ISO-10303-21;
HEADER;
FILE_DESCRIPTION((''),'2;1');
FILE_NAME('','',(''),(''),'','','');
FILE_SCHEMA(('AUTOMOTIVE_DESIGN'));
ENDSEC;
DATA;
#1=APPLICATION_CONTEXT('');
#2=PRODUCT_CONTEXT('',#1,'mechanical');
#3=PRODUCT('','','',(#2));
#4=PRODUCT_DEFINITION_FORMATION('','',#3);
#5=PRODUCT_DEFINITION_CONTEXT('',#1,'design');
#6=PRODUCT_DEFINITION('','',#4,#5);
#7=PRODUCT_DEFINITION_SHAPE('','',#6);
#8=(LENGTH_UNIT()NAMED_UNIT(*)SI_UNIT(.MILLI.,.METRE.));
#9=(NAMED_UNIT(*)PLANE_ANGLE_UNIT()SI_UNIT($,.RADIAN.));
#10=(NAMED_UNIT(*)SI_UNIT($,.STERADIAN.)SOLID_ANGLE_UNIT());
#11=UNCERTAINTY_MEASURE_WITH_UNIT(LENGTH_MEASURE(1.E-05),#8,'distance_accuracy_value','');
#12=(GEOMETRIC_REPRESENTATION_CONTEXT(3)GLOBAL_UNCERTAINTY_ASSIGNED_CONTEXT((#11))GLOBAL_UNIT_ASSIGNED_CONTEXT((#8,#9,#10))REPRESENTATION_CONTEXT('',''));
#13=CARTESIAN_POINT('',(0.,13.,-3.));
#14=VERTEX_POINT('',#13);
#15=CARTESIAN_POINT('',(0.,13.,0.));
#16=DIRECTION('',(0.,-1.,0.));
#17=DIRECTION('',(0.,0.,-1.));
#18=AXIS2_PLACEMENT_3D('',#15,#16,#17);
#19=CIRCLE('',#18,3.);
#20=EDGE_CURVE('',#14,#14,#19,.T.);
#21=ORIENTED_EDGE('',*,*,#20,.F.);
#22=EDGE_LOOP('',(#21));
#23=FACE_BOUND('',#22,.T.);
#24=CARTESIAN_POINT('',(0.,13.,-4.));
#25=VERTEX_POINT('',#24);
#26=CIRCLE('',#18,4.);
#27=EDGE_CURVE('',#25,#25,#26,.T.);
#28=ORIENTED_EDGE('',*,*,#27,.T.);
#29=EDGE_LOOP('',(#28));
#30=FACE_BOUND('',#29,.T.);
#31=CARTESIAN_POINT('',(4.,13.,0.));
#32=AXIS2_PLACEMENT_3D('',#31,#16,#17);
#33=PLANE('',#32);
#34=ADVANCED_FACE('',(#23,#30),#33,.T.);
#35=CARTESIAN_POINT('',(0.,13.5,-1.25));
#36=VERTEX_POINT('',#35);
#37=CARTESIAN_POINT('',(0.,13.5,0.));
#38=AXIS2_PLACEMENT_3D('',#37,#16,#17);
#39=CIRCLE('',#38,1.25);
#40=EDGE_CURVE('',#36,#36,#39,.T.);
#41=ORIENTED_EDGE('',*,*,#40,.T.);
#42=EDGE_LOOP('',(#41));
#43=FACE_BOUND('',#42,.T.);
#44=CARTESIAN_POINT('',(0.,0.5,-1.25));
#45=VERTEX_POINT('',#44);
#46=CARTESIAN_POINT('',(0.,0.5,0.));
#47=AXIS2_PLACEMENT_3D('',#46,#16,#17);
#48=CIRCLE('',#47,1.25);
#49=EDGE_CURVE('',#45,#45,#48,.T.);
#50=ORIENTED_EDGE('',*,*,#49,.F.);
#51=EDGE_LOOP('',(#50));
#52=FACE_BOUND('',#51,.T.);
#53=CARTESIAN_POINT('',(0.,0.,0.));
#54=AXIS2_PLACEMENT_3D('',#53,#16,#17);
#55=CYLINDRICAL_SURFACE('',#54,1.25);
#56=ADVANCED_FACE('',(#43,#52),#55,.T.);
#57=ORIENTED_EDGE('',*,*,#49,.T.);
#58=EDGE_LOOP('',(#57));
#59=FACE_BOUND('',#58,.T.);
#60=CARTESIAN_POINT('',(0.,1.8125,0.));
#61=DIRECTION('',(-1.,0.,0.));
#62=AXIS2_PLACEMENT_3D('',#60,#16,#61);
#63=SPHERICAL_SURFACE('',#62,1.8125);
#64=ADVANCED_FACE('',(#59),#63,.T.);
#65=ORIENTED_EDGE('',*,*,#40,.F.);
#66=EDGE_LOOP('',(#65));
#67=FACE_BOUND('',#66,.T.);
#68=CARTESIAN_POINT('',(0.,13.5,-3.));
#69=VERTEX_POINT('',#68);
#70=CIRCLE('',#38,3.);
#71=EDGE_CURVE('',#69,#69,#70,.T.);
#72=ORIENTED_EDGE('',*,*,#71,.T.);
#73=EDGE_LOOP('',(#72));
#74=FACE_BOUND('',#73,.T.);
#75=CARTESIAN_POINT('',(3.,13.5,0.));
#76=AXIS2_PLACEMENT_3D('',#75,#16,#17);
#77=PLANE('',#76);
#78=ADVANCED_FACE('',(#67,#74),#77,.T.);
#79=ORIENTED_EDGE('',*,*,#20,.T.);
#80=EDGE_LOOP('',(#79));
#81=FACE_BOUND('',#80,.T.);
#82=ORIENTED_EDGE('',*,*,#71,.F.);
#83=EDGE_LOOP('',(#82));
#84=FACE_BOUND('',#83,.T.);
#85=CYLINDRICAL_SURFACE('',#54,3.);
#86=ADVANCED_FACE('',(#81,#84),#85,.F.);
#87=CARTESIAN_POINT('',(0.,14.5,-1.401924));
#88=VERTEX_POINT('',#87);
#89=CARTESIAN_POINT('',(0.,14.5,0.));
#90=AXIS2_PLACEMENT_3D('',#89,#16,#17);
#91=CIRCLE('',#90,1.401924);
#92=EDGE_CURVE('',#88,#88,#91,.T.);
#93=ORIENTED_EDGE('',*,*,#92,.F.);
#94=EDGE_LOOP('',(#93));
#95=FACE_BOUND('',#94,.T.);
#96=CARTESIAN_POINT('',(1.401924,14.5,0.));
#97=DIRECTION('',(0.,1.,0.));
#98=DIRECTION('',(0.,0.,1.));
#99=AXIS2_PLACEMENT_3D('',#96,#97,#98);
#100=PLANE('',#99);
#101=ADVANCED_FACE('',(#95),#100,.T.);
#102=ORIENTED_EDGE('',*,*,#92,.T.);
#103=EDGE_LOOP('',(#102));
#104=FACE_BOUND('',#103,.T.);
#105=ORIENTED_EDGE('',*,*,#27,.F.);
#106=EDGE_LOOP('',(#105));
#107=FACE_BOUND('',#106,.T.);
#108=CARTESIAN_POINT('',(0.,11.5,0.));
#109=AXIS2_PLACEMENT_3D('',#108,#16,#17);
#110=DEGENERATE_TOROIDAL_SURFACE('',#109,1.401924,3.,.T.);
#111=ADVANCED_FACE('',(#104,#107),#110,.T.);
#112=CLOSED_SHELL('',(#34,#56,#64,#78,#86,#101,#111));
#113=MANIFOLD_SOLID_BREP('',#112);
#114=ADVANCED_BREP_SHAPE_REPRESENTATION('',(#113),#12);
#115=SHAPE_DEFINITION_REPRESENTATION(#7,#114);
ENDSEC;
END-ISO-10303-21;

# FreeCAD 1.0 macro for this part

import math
import FreeCAD as App
import Part
import Sketcher

doc = App.newDocument("Part")
params = doc.addObject("Spreadsheet::Sheet", "Params")
for row, (alias, value) in enumerate([
    ("sketch1_radius", "3 mm"),
    ("sketch1_width", "1 mm"),
    ("sketch1_height", "13 mm"),
    ("sketch1_height2", "0.5 mm"),
    ("sketch1_height3", "14.5 mm"),
    ("revolution_angle", "360 deg"),
], start=1):
    params.set(f"A{row}", alias)
    params.set(f"B{row}", "=" + value)
    params.setAlias(f"B{row}", alias)

body = doc.addObject("PartDesign::Body", "Body")

# Sketch on XY plane
sketch1 = doc.addObject("Sketcher::SketchObject", "Sketch")
body.addObject(sketch1)
sketch1.AttachmentSupport = (doc.XY_Plane, [""])
sketch1.MapMode = "FlatFace"
sketch1.addGeometry(Part.LineSegment(App.Vector(1.2, 0.5, 0), App.Vector(1.2, 13.5, 0)), False)
sketch1.addGeometry(Part.LineSegment(App.Vector(1.2, 13.5, 0), App.Vector(3, 13.5, 0)), False)
sketch1.addGeometry(Part.LineSegment(App.Vector(3, 13.5, 0), App.Vector(3, 13, 0)), False)
sketch1.addGeometry(Part.LineSegment(App.Vector(3, 13, 0), App.Vector(4, 13, 0)), False)
sketch1.addGeometry(Part.ArcOfCircle(Part.Circle(App.Vector(1.4, 11.5, 0), App.Vector(0, 0, 1), 3), math.radians(30), math.radians(90)), False)
sketch1.addGeometry(Part.LineSegment(App.Vector(1.4, 14.5, 0), App.Vector(0, 14.5, 0)), False)
sketch1.addGeometry(Part.LineSegment(App.Vector(0, 14.5, 0), App.Vector(0, 0, 0)), False)
sketch1.addGeometry(Part.ArcOfCircle(Part.Circle(App.Vector(0, 1.8, 0), App.Vector(0, 0, 1), 1.8), math.radians(-90), math.radians(-46)), False)
sketch1.addConstraint(Sketcher.Constraint("Coincident", 0, 2, 1, 1))
sketch1.addConstraint(Sketcher.Constraint("Coincident", 1, 2, 2, 1))
sketch1.addConstraint(Sketcher.Constraint("Coincident", 2, 2, 3, 1))
sketch1.addConstraint(Sketcher.Constraint("Coincident", 3, 2, 4, 1))
sketch1.addConstraint(Sketcher.Constraint("Tangent", 4, 2, 5, 1))
sketch1.addConstraint(Sketcher.Constraint("Coincident", 5, 2, 6, 1))
sketch1.addConstraint(Sketcher.Constraint("Coincident", 6, 2, 7, 1))
sketch1.addConstraint(Sketcher.Constraint("Coincident", 7, 2, 0, 1))
sketch1.addConstraint(Sketcher.Constraint("Vertical", 0))
sketch1.addConstraint(Sketcher.Constraint("Horizontal", 1))
sketch1.addConstraint(Sketcher.Constraint("Vertical", 2))
sketch1.addConstraint(Sketcher.Constraint("Horizontal", 3))
sketch1.addConstraint(Sketcher.Constraint("Horizontal", 5))
sketch1.addConstraint(Sketcher.Constraint("Vertical", 6))
sketch1.addConstraint(Sketcher.Constraint("Coincident", 6, 2, -1, 1))
sketch1.addConstraint(Sketcher.Constraint("PointOnObject", 7, 3, -2))
sketch1.addConstraint(Sketcher.Constraint("Radius", 4, 3.0))
sketch1.addConstraint(Sketcher.Constraint("DistanceX", 3, 1, 3, 2, 1.0))
sketch1.addConstraint(Sketcher.Constraint("DistanceY", 0, 1, 0, 2, 13.0))
sketch1.addConstraint(Sketcher.Constraint("DistanceY", 2, 2, 2, 1, 0.5))
sketch1.addConstraint(Sketcher.Constraint("DistanceY", 6, 2, 6, 1, 14.5))
sketch1.addConstraint(Sketcher.Constraint("DistanceX", -1, 1, 1, 2, 3.0))
sketch1.addConstraint(Sketcher.Constraint("DistanceY", -1, 1, 2, 2, 13.0))
sketch1.addConstraint(Sketcher.Constraint("DistanceX", 1, 1, 1, 2, 1.75))
sketch1.setExpression("Constraints[16]", "Params.sketch1_radius")
sketch1.setExpression("Constraints[17]", "Params.sketch1_width")
sketch1.setExpression("Constraints[18]", "Params.sketch1_height")
sketch1.setExpression("Constraints[19]", "Params.sketch1_height2")
sketch1.setExpression("Constraints[20]", "Params.sketch1_height3")
revolution = doc.addObject("PartDesign::Revolution", "Revolution")
body.addObject(revolution)
revolution.Profile = sketch1
revolution.ReferenceAxis = (sketch1, ["V_Axis"])
revolution.setExpression("Angle", "Params.revolution_angle")

doc.recompute()
